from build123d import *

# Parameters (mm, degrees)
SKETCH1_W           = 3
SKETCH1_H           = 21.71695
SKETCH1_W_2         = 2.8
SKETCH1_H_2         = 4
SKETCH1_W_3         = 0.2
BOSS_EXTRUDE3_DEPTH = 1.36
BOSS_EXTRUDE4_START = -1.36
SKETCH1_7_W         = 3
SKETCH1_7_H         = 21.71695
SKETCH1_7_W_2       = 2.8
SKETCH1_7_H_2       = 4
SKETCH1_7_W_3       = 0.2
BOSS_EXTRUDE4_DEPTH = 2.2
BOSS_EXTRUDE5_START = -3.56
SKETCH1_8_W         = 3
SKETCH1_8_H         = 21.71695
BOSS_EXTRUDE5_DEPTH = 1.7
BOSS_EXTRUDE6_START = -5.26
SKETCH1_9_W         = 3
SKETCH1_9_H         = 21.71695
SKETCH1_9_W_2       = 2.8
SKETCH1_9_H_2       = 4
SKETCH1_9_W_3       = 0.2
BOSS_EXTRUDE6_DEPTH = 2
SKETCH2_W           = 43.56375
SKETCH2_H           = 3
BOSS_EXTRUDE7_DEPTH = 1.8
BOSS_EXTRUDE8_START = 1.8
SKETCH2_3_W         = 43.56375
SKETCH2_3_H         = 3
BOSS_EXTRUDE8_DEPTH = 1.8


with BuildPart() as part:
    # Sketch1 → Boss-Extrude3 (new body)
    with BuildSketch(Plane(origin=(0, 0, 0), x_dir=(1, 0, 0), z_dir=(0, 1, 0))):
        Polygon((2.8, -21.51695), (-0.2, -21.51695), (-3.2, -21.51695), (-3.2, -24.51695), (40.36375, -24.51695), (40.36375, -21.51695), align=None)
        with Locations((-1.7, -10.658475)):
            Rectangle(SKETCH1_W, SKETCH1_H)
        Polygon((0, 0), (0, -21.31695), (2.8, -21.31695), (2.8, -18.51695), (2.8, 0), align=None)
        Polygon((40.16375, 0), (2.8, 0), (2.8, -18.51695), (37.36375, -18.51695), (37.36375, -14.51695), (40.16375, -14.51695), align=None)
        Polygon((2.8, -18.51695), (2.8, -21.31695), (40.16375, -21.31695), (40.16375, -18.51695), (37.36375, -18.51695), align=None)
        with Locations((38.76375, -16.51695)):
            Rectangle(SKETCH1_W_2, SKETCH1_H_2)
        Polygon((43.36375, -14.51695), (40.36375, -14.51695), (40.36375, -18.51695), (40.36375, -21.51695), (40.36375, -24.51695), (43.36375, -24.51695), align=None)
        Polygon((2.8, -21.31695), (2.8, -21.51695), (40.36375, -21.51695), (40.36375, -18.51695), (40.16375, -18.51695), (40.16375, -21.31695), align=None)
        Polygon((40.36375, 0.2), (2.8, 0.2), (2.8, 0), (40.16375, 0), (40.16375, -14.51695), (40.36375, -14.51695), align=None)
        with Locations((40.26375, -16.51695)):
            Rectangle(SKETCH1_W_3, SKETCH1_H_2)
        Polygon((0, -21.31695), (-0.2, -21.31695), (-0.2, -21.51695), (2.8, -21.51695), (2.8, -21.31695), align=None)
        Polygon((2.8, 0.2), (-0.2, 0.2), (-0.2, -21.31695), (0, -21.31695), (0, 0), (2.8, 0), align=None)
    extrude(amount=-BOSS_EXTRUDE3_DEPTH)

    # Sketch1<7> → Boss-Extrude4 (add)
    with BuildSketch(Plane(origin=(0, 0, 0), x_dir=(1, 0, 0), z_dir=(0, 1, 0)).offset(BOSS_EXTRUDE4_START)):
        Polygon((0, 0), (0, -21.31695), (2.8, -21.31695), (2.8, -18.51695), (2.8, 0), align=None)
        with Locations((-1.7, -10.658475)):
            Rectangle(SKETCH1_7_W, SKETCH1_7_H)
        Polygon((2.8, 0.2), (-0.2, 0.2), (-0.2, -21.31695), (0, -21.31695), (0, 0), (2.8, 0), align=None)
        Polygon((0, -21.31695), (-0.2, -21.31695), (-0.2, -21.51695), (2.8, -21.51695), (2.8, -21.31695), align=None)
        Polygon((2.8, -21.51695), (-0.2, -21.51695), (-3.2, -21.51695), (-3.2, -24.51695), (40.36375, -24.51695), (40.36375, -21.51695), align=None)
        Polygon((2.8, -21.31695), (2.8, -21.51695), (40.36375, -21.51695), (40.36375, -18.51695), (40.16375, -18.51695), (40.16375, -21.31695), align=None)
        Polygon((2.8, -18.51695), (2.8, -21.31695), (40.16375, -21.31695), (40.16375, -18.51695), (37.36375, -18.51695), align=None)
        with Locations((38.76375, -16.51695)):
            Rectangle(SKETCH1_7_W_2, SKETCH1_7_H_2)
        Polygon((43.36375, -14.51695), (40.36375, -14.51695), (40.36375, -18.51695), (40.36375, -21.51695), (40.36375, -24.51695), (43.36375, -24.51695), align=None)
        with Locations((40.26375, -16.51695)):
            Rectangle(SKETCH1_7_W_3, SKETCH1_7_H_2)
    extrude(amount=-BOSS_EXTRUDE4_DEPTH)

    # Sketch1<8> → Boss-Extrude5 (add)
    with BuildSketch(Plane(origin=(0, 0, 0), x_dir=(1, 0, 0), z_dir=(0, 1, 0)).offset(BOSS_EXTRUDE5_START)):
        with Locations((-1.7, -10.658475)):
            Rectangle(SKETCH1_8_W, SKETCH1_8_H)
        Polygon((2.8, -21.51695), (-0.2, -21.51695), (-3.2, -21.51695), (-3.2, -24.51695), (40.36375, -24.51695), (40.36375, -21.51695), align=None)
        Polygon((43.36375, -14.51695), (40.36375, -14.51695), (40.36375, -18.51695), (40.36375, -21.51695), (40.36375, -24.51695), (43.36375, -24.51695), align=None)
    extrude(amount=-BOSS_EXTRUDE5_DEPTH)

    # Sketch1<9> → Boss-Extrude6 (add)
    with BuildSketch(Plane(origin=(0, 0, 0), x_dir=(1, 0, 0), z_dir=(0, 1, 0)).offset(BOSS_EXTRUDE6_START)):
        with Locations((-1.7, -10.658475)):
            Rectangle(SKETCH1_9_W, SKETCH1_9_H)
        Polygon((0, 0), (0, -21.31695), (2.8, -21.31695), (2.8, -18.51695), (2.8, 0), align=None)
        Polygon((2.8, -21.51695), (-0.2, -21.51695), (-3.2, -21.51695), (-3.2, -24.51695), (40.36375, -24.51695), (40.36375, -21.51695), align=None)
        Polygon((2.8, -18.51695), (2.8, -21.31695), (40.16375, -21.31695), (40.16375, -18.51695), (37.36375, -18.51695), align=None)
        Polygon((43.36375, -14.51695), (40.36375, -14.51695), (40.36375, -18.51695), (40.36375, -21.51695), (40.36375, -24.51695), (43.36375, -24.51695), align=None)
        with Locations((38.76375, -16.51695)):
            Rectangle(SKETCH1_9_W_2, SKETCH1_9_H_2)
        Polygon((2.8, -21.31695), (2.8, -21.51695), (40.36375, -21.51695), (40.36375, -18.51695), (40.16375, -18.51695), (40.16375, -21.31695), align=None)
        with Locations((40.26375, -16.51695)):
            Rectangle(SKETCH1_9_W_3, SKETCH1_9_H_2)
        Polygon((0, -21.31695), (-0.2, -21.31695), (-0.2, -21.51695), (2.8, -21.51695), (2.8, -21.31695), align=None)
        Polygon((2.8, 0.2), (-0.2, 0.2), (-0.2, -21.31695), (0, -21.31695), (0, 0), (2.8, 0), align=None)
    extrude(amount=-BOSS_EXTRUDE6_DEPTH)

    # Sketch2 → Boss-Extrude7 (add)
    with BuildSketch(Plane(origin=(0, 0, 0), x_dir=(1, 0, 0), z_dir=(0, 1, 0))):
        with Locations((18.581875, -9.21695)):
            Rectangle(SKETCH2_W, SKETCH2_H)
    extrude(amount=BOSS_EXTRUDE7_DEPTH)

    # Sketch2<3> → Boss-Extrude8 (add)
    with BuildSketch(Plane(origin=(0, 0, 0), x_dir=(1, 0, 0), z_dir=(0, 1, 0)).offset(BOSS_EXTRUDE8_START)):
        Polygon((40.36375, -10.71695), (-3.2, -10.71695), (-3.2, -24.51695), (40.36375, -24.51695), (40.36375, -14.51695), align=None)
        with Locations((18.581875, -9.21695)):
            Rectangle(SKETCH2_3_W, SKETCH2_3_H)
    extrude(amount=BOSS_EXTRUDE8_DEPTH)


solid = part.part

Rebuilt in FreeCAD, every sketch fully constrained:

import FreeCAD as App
import Part
import Sketcher

V = App.Vector
Q = App.Units.Quantity

doc = App.newDocument("Part")
body = doc.addObject("PartDesign::Body", "Body")

# Sketch on XZ plane
sketch1 = body.newObject("Sketcher::SketchObject", "Sketch")
sketch1.AttachmentSupport = (doc.getObject("XZ_Plane"), [""])
sketch1.MapMode = "FlatFace"
sketch1.addGeometry(Part.LineSegment(V(43.36375, 14.51695, 0), V(40.36375, 14.51695, 0)), False)
sketch1.addGeometry(Part.LineSegment(V(40.36375, 14.51695, 0), V(40.36375, -0.2, 0)), False)
sketch1.addGeometry(Part.LineSegment(V(40.36375, -0.2, 0), V(-3.2, -0.2, 0)), False)
sketch1.addGeometry(Part.LineSegment(V(-3.2, -0.2, 0), V(-3.2, 24.51695, 0)), False)
sketch1.addGeometry(Part.LineSegment(V(-3.2, 24.51695, 0), V(43.36375, 24.51695, 0)), False)
sketch1.addGeometry(Part.LineSegment(V(43.36375, 24.51695, 0), V(43.36375, 14.51695, 0)), False)
sketch1.addConstraint(Sketcher.Constraint("Coincident", 0, 2, 1, 1))
sketch1.addConstraint(Sketcher.Constraint("Coincident", 1, 2, 2, 1))
sketch1.addConstraint(Sketcher.Constraint("Coincident", 2, 2, 3, 1))
sketch1.addConstraint(Sketcher.Constraint("Coincident", 3, 2, 4, 1))
sketch1.addConstraint(Sketcher.Constraint("Coincident", 4, 2, 5, 1))
sketch1.addConstraint(Sketcher.Constraint("Coincident", 5, 2, 0, 1))
sketch1.addConstraint(Sketcher.Constraint("Horizontal", 0))
sketch1.addConstraint(Sketcher.Constraint("Vertical", 1))
sketch1.addConstraint(Sketcher.Constraint("Horizontal", 2))
sketch1.addConstraint(Sketcher.Constraint("Vertical", 3))
sketch1.addConstraint(Sketcher.Constraint("Horizontal", 4))
sketch1.addConstraint(Sketcher.Constraint("Vertical", 5))
sketch1.addConstraint(Sketcher.Constraint("DistanceX", 0, 2, 0, 1, Q("3 mm")))
sketch1.addConstraint(Sketcher.Constraint("DistanceY", 5, 2, 5, 1, Q("10 mm")))
sketch1.addConstraint(Sketcher.Constraint("DistanceY", 1, 2, -1, 1, Q("0.2 mm")))
sketch1.addConstraint(Sketcher.Constraint("DistanceX", 2, 2, -1, 1, Q("3.2 mm")))
sketch1.addConstraint(Sketcher.Constraint("DistanceX", 2, 2, 2, 1, Q("43.56375 mm")))
sketch1.addConstraint(Sketcher.Constraint("DistanceY", 1, 2, 1, 1, Q("14.71695 mm")))
pad1 = body.newObject("PartDesign::Pad", "Pad")
pad1.Profile = sketch1
pad1.Length = 1.36

# Sketch on XZ plane
sketch2 = body.newObject("Sketcher::SketchObject", "Sketch001")
sketch2.AttachmentSupport = (doc.getObject("XZ_Plane"), [""])
sketch2.MapMode = "FlatFace"
sketch2.AttachmentOffset = App.Placement(V(0, 0, 1.36), App.Rotation())
sketch2.addGeometry(Part.LineSegment(V(2.8, -0.2, 0), V(-3.2, -0.2, 0)), False)
sketch2.addGeometry(Part.LineSegment(V(-3.2, -0.2, 0), V(-3.2, 24.51695, 0)), False)
sketch2.addGeometry(Part.LineSegment(V(-3.2, 24.51695, 0), V(43.36375, 24.51695, 0)), False)
sketch2.addGeometry(Part.LineSegment(V(43.36375, 24.51695, 0), V(43.36375, 14.51695, 0)), False)
sketch2.addGeometry(Part.LineSegment(V(43.36375, 14.51695, 0), V(37.36375, 14.51695, 0)), False)
sketch2.addGeometry(Part.LineSegment(V(37.36375, 14.51695, 0), V(37.36375, 18.51695, 0)), False)
sketch2.addGeometry(Part.LineSegment(V(37.36375, 18.51695, 0), V(2.8, 18.51695, 0)), False)
sketch2.addGeometry(Part.LineSegment(V(2.8, 18.51695, 0), V(2.8, -0.2, 0)), False)
sketch2.addConstraint(Sketcher.Constraint("Coincident", 0, 2, 1, 1))
sketch2.addConstraint(Sketcher.Constraint("Coincident", 1, 2, 2, 1))
sketch2.addConstraint(Sketcher.Constraint("Coincident", 2, 2, 3, 1))
sketch2.addConstraint(Sketcher.Constraint("Coincident", 3, 2, 4, 1))
sketch2.addConstraint(Sketcher.Constraint("Coincident", 4, 2, 5, 1))
sketch2.addConstraint(Sketcher.Constraint("Coincident", 5, 2, 6, 1))
sketch2.addConstraint(Sketcher.Constraint("Coincident", 6, 2, 7, 1))
sketch2.addConstraint(Sketcher.Constraint("Coincident", 7, 2, 0, 1))
sketch2.addConstraint(Sketcher.Constraint("Horizontal", 0))
sketch2.addConstraint(Sketcher.Constraint("Vertical", 1))
sketch2.addConstraint(Sketcher.Constraint("Horizontal", 2))
sketch2.addConstraint(Sketcher.Constraint("Vertical", 3))
sketch2.addConstraint(Sketcher.Constraint("Horizontal", 4))
sketch2.addConstraint(Sketcher.Constraint("Vertical", 5))
sketch2.addConstraint(Sketcher.Constraint("Horizontal", 6))
sketch2.addConstraint(Sketcher.Constraint("Vertical", 7))
sketch2.addConstraint(Sketcher.Constraint("Equal", 0, 4))
sketch2.addConstraint(Sketcher.Constraint("DistanceX", 0, 2, 0, 1, Q("6 mm")))
sketch2.addConstraint(Sketcher.Constraint("DistanceY", 3, 2, 3, 1, Q("10 mm")))
sketch2.addConstraint(Sketcher.Constraint("DistanceY", 5, 1, 5, 2, Q("4 mm")))
sketch2.addConstraint(Sketcher.Constraint("DistanceX", 0, 2, -1, 1, Q("3.2 mm")))
sketch2.addConstraint(Sketcher.Constraint("DistanceY", 0, 2, -1, 1, Q("0.2 mm")))
sketch2.addConstraint(Sketcher.Constraint("DistanceX", 2, 1, 2, 2, Q("46.56375 mm")))
sketch2.addConstraint(Sketcher.Constraint("DistanceY", 1, 1, 1, 2, Q("24.71695 mm")))
pad2 = body.newObject("PartDesign::Pad", "Pad001")
pad2.Profile = sketch2
pad2.Length = 2.2

# Sketch on XZ plane
sketch3 = body.newObject("Sketcher::SketchObject", "Sketch002")
sketch3.AttachmentSupport = (doc.getObject("XZ_Plane"), [""])
sketch3.MapMode = "FlatFace"
sketch3.AttachmentOffset = App.Placement(V(0, 0, 3.56), App.Rotation())
sketch3.addGeometry(Part.LineSegment(V(-3.2, -0.2, 0), V(-3.2, 24.51695, 0)), False)
sketch3.addGeometry(Part.LineSegment(V(-3.2, 24.51695, 0), V(43.36375, 24.51695, 0)), False)
sketch3.addGeometry(Part.LineSegment(V(43.36375, 24.51695, 0), V(43.36375, 14.51695, 0)), False)
sketch3.addGeometry(Part.LineSegment(V(43.36375, 14.51695, 0), V(40.36375, 14.51695, 0)), False)
sketch3.addGeometry(Part.LineSegment(V(40.36375, 14.51695, 0), V(40.36375, 21.51695, 0)), False)
sketch3.addGeometry(Part.LineSegment(V(40.36375, 21.51695, 0), V(-0.2, 21.51695, 0)), False)
sketch3.addGeometry(Part.LineSegment(V(-0.2, 21.51695, 0), V(-0.2, -0.2, 0)), False)
sketch3.addGeometry(Part.LineSegment(V(-0.2, -0.2, 0), V(-3.2, -0.2, 0)), False)
sketch3.addConstraint(Sketcher.Constraint("Coincident", 0, 2, 1, 1))
sketch3.addConstraint(Sketcher.Constraint("Coincident", 1, 2, 2, 1))
sketch3.addConstraint(Sketcher.Constraint("Coincident", 2, 2, 3, 1))
sketch3.addConstraint(Sketcher.Constraint("Coincident", 3, 2, 4, 1))
sketch3.addConstraint(Sketcher.Constraint("Coincident", 4, 2, 5, 1))
sketch3.addConstraint(Sketcher.Constraint("Coincident", 5, 2, 6, 1))
sketch3.addConstraint(Sketcher.Constraint("Coincident", 6, 2, 7, 1))
sketch3.addConstraint(Sketcher.Constraint("Coincident", 7, 2, 0, 1))
sketch3.addConstraint(Sketcher.Constraint("Vertical", 0))
sketch3.addConstraint(Sketcher.Constraint("Horizontal", 1))
sketch3.addConstraint(Sketcher.Constraint("Vertical", 2))
sketch3.addConstraint(Sketcher.Constraint("Horizontal", 3))
sketch3.addConstraint(Sketcher.Constraint("Vertical", 4))
sketch3.addConstraint(Sketcher.Constraint("Horizontal", 5))
sketch3.addConstraint(Sketcher.Constraint("Vertical", 6))
sketch3.addConstraint(Sketcher.Constraint("Horizontal", 7))
sketch3.addConstraint(Sketcher.Constraint("Equal", 3, 7))
sketch3.addConstraint(Sketcher.Constraint("DistanceX", 3, 2, 3, 1, Q("3 mm")))
sketch3.addConstraint(Sketcher.Constraint("DistanceY", 2, 2, 2, 1, Q("10 mm")))
sketch3.addConstraint(Sketcher.Constraint("DistanceY", 4, 1, 4, 2, Q("7 mm")))
sketch3.addConstraint(Sketcher.Constraint("DistanceX", 0, 2, -1, 1, Q("3.2 mm")))
sketch3.addConstraint(Sketcher.Constraint("DistanceY", 6, 2, -1, 1, Q("0.2 mm")))
sketch3.addConstraint(Sketcher.Constraint("DistanceX", 1, 1, 1, 2, Q("46.56375 mm")))
sketch3.addConstraint(Sketcher.Constraint("DistanceY", 0, 1, 0, 2, Q("24.71695 mm")))
pad3 = body.newObject("PartDesign::Pad", "Pad002")
pad3.Profile = sketch3
pad3.Length = 1.7

# Sketch on XZ plane
sketch4 = body.newObject("Sketcher::SketchObject", "Sketch003")
sketch4.AttachmentSupport = (doc.getObject("XZ_Plane"), [""])
sketch4.MapMode = "FlatFace"
sketch4.AttachmentOffset = App.Placement(V(0, 0, 5.26), App.Rotation())
sketch4.addGeometry(Part.LineSegment(V(-3.2, -0.2, 0), V(-3.2, 24.51695, 0)), False)
sketch4.addGeometry(Part.LineSegment(V(-3.2, 24.51695, 0), V(43.36375, 24.51695, 0)), False)
sketch4.addGeometry(Part.LineSegment(V(43.36375, 24.51695, 0), V(43.36375, 14.51695, 0)), False)
sketch4.addGeometry(Part.LineSegment(V(43.36375, 14.51695, 0), V(37.36375, 14.51695, 0)), False)
sketch4.addGeometry(Part.LineSegment(V(37.36375, 14.51695, 0), V(37.36375, 18.51695, 0)), False)
sketch4.addGeometry(Part.LineSegment(V(37.36375, 18.51695, 0), V(2.8, 18.51695, 0)), False)
sketch4.addGeometry(Part.LineSegment(V(2.8, 18.51695, 0), V(2.8, -0.2, 0)), False)
sketch4.addGeometry(Part.LineSegment(V(2.8, -0.2, 0), V(-3.2, -0.2, 0)), False)
sketch4.addConstraint(Sketcher.Constraint("Coincident", 0, 2, 1, 1))
sketch4.addConstraint(Sketcher.Constraint("Coincident", 1, 2, 2, 1))
sketch4.addConstraint(Sketcher.Constraint("Coincident", 2, 2, 3, 1))
sketch4.addConstraint(Sketcher.Constraint("Coincident", 3, 2, 4, 1))
sketch4.addConstraint(Sketcher.Constraint("Coincident", 4, 2, 5, 1))
sketch4.addConstraint(Sketcher.Constraint("Coincident", 5, 2, 6, 1))
sketch4.addConstraint(Sketcher.Constraint("Coincident", 6, 2, 7, 1))
sketch4.addConstraint(Sketcher.Constraint("Coincident", 7, 2, 0, 1))
sketch4.addConstraint(Sketcher.Constraint("Vertical", 0))
sketch4.addConstraint(Sketcher.Constraint("Horizontal", 1))
sketch4.addConstraint(Sketcher.Constraint("Vertical", 2))
sketch4.addConstraint(Sketcher.Constraint("Horizontal", 3))
sketch4.addConstraint(Sketcher.Constraint("Vertical", 4))
sketch4.addConstraint(Sketcher.Constraint("Horizontal", 5))
sketch4.addConstraint(Sketcher.Constraint("Vertical", 6))
sketch4.addConstraint(Sketcher.Constraint("Horizontal", 7))
sketch4.addConstraint(Sketcher.Constraint("Equal", 3, 7))
sketch4.addConstraint(Sketcher.Constraint("DistanceX", 3, 2, 3, 1, Q("6 mm")))
sketch4.addConstraint(Sketcher.Constraint("DistanceY", 2, 2, 2, 1, Q("10 mm")))
sketch4.addConstraint(Sketcher.Constraint("DistanceY", 4, 1, 4, 2, Q("4 mm")))
sketch4.addConstraint(Sketcher.Constraint("DistanceX", 0, 2, -1, 1, Q("3.2 mm")))
sketch4.addConstraint(Sketcher.Constraint("DistanceY", 6, 2, -1, 1, Q("0.2 mm")))
sketch4.addConstraint(Sketcher.Constraint("DistanceX", 1, 1, 1, 2, Q("46.56375 mm")))
sketch4.addConstraint(Sketcher.Constraint("DistanceY", 0, 1, 0, 2, Q("24.71695 mm")))
pad4 = body.newObject("PartDesign::Pad", "Pad003")
pad4.Profile = sketch4
pad4.Length = 2

# Sketch on XZ plane
sketch5 = body.newObject("Sketcher::SketchObject", "Sketch004")
sketch5.AttachmentSupport = (doc.getObject("XZ_Plane"), [""])
sketch5.MapMode = "FlatFace"
sketch5.addGeometry(Part.LineSegment(V(-3.2, 7.71695, 0), V(-3.2, 10.71695, 0)), False)
sketch5.addGeometry(Part.LineSegment(V(-3.2, 10.71695, 0), V(40.36375, 10.71695, 0)), False)
sketch5.addGeometry(Part.LineSegment(V(40.36375, 10.71695, 0), V(40.36375, 7.71695, 0)), False)
sketch5.addGeometry(Part.LineSegment(V(40.36375, 7.71695, 0), V(-3.2, 7.71695, 0)), False)
sketch5.addConstraint(Sketcher.Constraint("Coincident", 0, 2, 1, 1))
sketch5.addConstraint(Sketcher.Constraint("Coincident", 1, 2, 2, 1))
sketch5.addConstraint(Sketcher.Constraint("Coincident", 2, 2, 3, 1))
sketch5.addConstraint(Sketcher.Constraint("Coincident", 3, 2, 0, 1))
sketch5.addConstraint(Sketcher.Constraint("Vertical", 0))
sketch5.addConstraint(Sketcher.Constraint("Horizontal", 1))
sketch5.addConstraint(Sketcher.Constraint("Vertical", 2))
sketch5.addConstraint(Sketcher.Constraint("Horizontal", 3))
sketch5.addConstraint(Sketcher.Constraint("DistanceY", 0, 1, 0, 2, Q("3 mm")))
sketch5.addConstraint(Sketcher.Constraint("DistanceX", 0, 2, -1, 1, Q("3.2 mm")))
sketch5.addConstraint(Sketcher.Constraint("DistanceX", 1, 1, 1, 2, Q("43.56375 mm")))
sketch5.addConstraint(Sketcher.Constraint("DistanceY", -1, 1, 0, 2, Q("10.71695 mm")))
pad5 = body.newObject("PartDesign::Pad", "Pad004")
pad5.Profile = sketch5
pad5.Length = 1.8
pad5.Reversed = True

# Sketch on XZ plane
sketch6 = body.newObject("Sketcher::SketchObject", "Sketch005")
sketch6.AttachmentSupport = (doc.getObject("XZ_Plane"), [""])
sketch6.MapMode = "FlatFace"
sketch6.AttachmentOffset = App.Placement(V(0, 0, -1.8), App.Rotation())
sketch6.addGeometry(Part.LineSegment(V(-3.2, 24.51695, 0), V(40.36375, 24.51695, 0)), False)
sketch6.addGeometry(Part.LineSegment(V(40.36375, 24.51695, 0), V(40.36375, 7.71695, 0)), False)
sketch6.addGeometry(Part.LineSegment(V(40.36375, 7.71695, 0), V(-3.2, 7.71695, 0)), False)
sketch6.addGeometry(Part.LineSegment(V(-3.2, 7.71695, 0), V(-3.2, 24.51695, 0)), False)
sketch6.addConstraint(Sketcher.Constraint("Coincident", 0, 2, 1, 1))
sketch6.addConstraint(Sketcher.Constraint("Coincident", 1, 2, 2, 1))
sketch6.addConstraint(Sketcher.Constraint("Coincident", 2, 2, 3, 1))
sketch6.addConstraint(Sketcher.Constraint("Coincident", 3, 2, 0, 1))
sketch6.addConstraint(Sketcher.Constraint("Horizontal", 0))
sketch6.addConstraint(Sketcher.Constraint("Vertical", 1))
sketch6.addConstraint(Sketcher.Constraint("Horizontal", 2))
sketch6.addConstraint(Sketcher.Constraint("Vertical", 3))
sketch6.addConstraint(Sketcher.Constraint("DistanceY", 1, 2, 1, 1, Q("16.8 mm")))
sketch6.addConstraint(Sketcher.Constraint("DistanceX", 2, 2, -1, 1, Q("3.2 mm")))
sketch6.addConstraint(Sketcher.Constraint("DistanceX", 0, 1, 0, 2, Q("43.56375 mm")))
sketch6.addConstraint(Sketcher.Constraint("DistanceY", -1, 1, 0, 2, Q("24.51695 mm")))
pad6 = body.newObject("PartDesign::Pad", "Pad005")
pad6.Profile = sketch6
pad6.Length = 1.8
pad6.Reversed = True

doc.recompute()
